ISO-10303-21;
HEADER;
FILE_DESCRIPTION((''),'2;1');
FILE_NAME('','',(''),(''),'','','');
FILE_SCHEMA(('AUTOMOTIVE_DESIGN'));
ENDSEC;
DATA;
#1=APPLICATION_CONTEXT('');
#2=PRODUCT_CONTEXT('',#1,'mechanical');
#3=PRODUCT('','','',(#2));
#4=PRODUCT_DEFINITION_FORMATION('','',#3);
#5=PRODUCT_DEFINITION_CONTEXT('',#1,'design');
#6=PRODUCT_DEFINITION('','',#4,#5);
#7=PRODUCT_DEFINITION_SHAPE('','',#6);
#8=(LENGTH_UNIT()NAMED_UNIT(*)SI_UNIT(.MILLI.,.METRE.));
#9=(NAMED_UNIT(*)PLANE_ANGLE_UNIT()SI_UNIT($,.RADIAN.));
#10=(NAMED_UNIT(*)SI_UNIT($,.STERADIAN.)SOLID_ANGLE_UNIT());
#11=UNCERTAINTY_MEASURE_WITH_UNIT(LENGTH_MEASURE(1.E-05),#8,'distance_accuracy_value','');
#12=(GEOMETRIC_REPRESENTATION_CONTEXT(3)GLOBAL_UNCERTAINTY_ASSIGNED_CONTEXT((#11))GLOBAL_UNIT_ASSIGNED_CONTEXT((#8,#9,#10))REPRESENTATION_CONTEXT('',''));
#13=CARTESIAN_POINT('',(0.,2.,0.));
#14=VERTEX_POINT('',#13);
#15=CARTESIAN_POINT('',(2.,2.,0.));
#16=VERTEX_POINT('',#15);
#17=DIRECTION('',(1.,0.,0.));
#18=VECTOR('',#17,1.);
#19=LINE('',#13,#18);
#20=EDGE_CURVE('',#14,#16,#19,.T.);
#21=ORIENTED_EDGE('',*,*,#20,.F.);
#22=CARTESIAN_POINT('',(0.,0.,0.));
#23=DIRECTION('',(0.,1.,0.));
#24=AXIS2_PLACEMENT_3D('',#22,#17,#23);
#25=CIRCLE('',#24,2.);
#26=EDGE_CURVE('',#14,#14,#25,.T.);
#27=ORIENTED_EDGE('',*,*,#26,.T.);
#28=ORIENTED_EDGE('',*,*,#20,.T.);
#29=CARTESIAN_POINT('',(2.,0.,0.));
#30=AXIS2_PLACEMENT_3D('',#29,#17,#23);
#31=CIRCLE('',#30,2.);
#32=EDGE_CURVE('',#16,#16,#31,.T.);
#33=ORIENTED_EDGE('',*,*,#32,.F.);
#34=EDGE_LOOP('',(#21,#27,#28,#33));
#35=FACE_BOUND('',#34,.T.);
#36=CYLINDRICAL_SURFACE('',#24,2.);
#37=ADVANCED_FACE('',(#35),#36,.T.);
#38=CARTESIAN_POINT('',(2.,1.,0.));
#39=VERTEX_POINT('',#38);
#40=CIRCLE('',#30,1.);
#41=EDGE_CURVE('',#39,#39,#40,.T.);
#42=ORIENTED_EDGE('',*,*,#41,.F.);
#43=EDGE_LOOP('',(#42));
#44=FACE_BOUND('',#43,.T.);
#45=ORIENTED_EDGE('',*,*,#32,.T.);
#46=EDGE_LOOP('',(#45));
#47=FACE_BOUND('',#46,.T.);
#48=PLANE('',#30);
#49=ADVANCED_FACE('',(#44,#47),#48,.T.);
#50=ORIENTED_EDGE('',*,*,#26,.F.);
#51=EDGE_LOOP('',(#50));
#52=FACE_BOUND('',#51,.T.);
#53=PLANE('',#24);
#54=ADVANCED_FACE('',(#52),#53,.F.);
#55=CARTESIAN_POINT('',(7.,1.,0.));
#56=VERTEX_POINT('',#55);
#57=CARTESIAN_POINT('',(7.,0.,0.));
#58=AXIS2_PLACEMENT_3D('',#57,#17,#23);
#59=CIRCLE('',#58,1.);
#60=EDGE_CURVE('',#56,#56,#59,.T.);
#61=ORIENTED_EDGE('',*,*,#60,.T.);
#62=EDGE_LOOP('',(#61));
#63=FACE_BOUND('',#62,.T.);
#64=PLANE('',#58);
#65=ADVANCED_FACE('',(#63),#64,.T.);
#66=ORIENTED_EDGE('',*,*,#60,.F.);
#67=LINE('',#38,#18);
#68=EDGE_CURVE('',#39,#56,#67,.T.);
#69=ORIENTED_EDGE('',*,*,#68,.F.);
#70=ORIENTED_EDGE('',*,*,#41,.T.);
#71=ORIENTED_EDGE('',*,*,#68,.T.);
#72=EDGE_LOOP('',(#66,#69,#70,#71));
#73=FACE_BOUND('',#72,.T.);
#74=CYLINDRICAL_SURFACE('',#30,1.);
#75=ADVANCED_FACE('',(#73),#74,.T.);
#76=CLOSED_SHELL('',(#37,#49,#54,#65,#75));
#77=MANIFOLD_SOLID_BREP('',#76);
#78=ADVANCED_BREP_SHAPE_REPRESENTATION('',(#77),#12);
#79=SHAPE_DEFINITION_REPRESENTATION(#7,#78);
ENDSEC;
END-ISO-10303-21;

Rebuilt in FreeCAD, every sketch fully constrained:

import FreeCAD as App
import Part
import Sketcher
from FreeCAD import Vector
Q = App.Units.Quantity


def add_polygon(sketch, points):
    """Adds a closed chain of lines whose ends are joined by coincident constraints."""
    first, n = sketch.GeometryCount, len(points)
    for a, b in zip(points, points[1:] + points[:1]):
        sketch.addGeometry(Part.LineSegment(App.Vector(*a, 0), App.Vector(*b, 0)), False)
    for i in range(n):
        sketch.addConstraint(Sketcher.Constraint("Coincident", first + i, 2, first + (i + 1) % n, 1))

doc = App.newDocument("Part")
body = doc.addObject("PartDesign::Body", "Body")

# Sketch on XY plane
sketch1 = doc.addObject("Sketcher::SketchObject", "Sketch")
body.addObject(sketch1)
sketch1.AttachmentSupport = (doc.XY_Plane, [""])
sketch1.MapMode = "FlatFace"
add_polygon(sketch1, [(0, 2), (0, 0), (7, 0), (7, 1), (2, 1), (2, 2)])  # lines 0-5
sketch1.addConstraint([
    Sketcher.Constraint("Vertical", 0),
    Sketcher.Constraint("Horizontal", 1),
    Sketcher.Constraint("Vertical", 2),
    Sketcher.Constraint("Horizontal", 3),
    Sketcher.Constraint("Vertical", 4),
    Sketcher.Constraint("Horizontal", 5),
    Sketcher.Constraint("Coincident", 0, 2, -1, 1),
    Sketcher.Constraint("Equal", 5, 0),
    Sketcher.Constraint("Equal", 2, 4),
    Sketcher.Constraint("DistanceX", 5, 2, 5, 1, Q("2 mm")),
    Sketcher.Constraint("DistanceX", 1, 1, 1, 2, Q("7 mm")),
])
revolution = doc.addObject("PartDesign::Revolution", "Revolution")
body.addObject(revolution)
revolution.Profile = sketch1
revolution.ReferenceAxis = (sketch1, ["H_Axis"])
revolution.Angle = 360

doc.recompute()
